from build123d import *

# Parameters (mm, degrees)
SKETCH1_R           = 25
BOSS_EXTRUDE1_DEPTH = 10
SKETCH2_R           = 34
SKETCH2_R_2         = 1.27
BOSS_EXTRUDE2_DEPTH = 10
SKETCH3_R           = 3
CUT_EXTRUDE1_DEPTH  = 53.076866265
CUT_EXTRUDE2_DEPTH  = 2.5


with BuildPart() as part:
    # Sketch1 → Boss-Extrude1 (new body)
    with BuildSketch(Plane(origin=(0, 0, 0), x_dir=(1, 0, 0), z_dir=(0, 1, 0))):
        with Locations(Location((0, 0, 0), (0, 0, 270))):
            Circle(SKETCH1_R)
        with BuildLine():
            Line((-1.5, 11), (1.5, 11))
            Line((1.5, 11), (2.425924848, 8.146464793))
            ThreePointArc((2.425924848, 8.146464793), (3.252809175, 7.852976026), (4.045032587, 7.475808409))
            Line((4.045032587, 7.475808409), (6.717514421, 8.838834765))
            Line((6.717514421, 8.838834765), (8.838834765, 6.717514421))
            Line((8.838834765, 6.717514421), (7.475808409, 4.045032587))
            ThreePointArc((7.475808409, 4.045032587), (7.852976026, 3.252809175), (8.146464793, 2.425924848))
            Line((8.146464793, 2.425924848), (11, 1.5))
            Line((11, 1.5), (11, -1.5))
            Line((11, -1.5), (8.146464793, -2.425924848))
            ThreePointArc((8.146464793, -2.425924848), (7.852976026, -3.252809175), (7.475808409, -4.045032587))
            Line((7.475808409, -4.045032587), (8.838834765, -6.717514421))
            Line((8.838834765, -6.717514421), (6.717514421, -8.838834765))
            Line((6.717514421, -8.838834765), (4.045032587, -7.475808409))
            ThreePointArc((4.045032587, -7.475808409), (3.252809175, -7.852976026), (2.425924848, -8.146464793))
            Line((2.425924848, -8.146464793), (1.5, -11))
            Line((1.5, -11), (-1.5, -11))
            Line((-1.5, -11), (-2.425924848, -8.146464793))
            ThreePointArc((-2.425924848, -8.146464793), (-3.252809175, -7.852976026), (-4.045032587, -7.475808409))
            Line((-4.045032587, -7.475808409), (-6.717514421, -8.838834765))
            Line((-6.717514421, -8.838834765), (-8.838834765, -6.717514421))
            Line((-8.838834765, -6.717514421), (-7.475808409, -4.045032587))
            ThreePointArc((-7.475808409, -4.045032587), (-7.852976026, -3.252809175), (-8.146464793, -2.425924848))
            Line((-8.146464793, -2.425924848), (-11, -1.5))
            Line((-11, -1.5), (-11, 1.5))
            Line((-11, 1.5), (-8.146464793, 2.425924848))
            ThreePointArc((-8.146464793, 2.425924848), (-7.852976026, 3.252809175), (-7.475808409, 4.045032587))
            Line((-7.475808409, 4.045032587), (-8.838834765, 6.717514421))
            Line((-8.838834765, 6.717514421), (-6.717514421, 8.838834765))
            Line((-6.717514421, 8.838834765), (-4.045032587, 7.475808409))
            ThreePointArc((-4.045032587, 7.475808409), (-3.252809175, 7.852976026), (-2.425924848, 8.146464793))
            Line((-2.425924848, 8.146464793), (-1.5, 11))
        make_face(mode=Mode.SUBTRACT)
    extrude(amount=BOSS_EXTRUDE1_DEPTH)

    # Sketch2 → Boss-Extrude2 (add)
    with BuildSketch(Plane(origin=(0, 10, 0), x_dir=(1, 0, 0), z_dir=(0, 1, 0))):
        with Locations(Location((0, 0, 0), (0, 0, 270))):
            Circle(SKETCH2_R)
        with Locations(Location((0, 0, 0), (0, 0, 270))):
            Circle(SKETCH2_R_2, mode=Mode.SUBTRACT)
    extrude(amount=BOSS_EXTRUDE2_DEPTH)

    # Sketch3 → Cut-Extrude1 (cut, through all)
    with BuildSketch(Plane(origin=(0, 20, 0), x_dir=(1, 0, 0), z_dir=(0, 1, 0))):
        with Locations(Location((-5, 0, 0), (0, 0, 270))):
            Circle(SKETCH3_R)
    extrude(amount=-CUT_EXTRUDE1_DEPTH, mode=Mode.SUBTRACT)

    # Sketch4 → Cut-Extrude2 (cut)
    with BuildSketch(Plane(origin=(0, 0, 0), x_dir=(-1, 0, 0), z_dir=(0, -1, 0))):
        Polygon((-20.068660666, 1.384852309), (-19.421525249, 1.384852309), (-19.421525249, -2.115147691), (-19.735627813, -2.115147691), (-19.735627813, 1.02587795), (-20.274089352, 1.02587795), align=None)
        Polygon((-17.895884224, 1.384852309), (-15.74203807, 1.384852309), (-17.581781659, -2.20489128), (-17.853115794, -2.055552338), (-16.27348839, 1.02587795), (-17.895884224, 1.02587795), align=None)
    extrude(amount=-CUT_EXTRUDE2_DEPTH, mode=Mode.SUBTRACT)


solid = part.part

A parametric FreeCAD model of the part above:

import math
import FreeCAD as App
import Part
import Sketcher
from FreeCAD import Vector


def add_polygon(sketch, points):
    """Adds a closed chain of lines whose ends are joined by coincident constraints."""
    first, n = sketch.GeometryCount, len(points)
    for a, b in zip(points, points[1:] + points[:1]):
        sketch.addGeometry(Part.LineSegment(App.Vector(*a, 0), App.Vector(*b, 0)), False)
    for i in range(n):
        sketch.addConstraint(Sketcher.Constraint("Coincident", first + i, 2, first + (i + 1) % n, 1))

doc = App.newDocument("Part")
body = doc.addObject("PartDesign::Body", "Body")

# Sketch on XZ plane
sketch1 = body.newObject("Sketcher::SketchObject", "Sketch")
sketch1.AttachmentSupport = (doc.getObject("XZ_Plane"), [""])
sketch1.MapMode = "FlatFace"
sketch1.addGeometry(Part.Circle(Vector(0, 0, 0), Vector(0, 0, 1), 25), False)
sketch1.addGeometry(Part.LineSegment(Vector(-2.425925, -8.146465, 0), Vector(-1.5, -11, 0)), False)
sketch1.addGeometry(Part.LineSegment(Vector(-1.5, -11, 0), Vector(1.5, -11, 0)), False)
sketch1.addGeometry(Part.LineSegment(Vector(1.5, -11, 0), Vector(2.425925, -8.146465, 0)), False)
sketch1.addGeometry(Part.ArcOfCircle(Part.Circle(Vector(0, 0, 0), Vector(0, 0, 1), 8.5), math.radians(-73.417065), math.radians(-61.582935)), False)
sketch1.addGeometry(Part.LineSegment(Vector(4.045033, -7.475808, 0), Vector(6.717514, -8.838835, 0)), False)
sketch1.addGeometry(Part.LineSegment(Vector(6.717514, -8.838835, 0), Vector(8.838835, -6.717514, 0)), False)
sketch1.addGeometry(Part.LineSegment(Vector(8.838835, -6.717514, 0), Vector(7.475808, -4.045033, 0)), False)
sketch1.addGeometry(Part.ArcOfCircle(Part.Circle(Vector(0, 0, 0), Vector(0, 0, 1), 8.5), math.radians(-28.417065), math.radians(-16.582935)), False)
sketch1.addGeometry(Part.LineSegment(Vector(8.146465, -2.425925, 0), Vector(11, -1.5, 0)), False)
sketch1.addGeometry(Part.LineSegment(Vector(11, -1.5, 0), Vector(11, 1.5, 0)), False)
sketch1.addGeometry(Part.LineSegment(Vector(11, 1.5, 0), Vector(8.146465, 2.425925, 0)), False)
sketch1.addGeometry(Part.ArcOfCircle(Part.Circle(Vector(0, 0, 0), Vector(0, 0, 1), 8.5), math.radians(16.582935), math.radians(28.417065)), False)
sketch1.addGeometry(Part.LineSegment(Vector(7.475808, 4.045033, 0), Vector(8.838835, 6.717514, 0)), False)
sketch1.addGeometry(Part.LineSegment(Vector(8.838835, 6.717514, 0), Vector(6.717514, 8.838835, 0)), False)
sketch1.addGeometry(Part.LineSegment(Vector(6.717514, 8.838835, 0), Vector(4.045033, 7.475808, 0)), False)
sketch1.addGeometry(Part.ArcOfCircle(Part.Circle(Vector(0, 0, 0), Vector(0, 0, 1), 8.5), math.radians(61.582935), math.radians(73.417065)), False)
sketch1.addGeometry(Part.LineSegment(Vector(2.425925, 8.146465, 0), Vector(1.5, 11, 0)), False)
sketch1.addGeometry(Part.LineSegment(Vector(1.5, 11, 0), Vector(-1.5, 11, 0)), False)
sketch1.addGeometry(Part.LineSegment(Vector(-1.5, 11, 0), Vector(-2.425925, 8.146465, 0)), False)
sketch1.addGeometry(Part.ArcOfCircle(Part.Circle(Vector(0, 0, 0), Vector(0, 0, 1), 8.5), math.radians(106.582935), math.radians(118.417065)), False)
sketch1.addGeometry(Part.LineSegment(Vector(-4.045033, 7.475808, 0), Vector(-6.717514, 8.838835, 0)), False)
sketch1.addGeometry(Part.LineSegment(Vector(-6.717514, 8.838835, 0), Vector(-8.838835, 6.717514, 0)), False)
sketch1.addGeometry(Part.LineSegment(Vector(-8.838835, 6.717514, 0), Vector(-7.475808, 4.045033, 0)), False)
sketch1.addGeometry(Part.ArcOfCircle(Part.Circle(Vector(0, 0, 0), Vector(0, 0, 1), 8.5), math.radians(151.582935), math.radians(163.417065)), False)
sketch1.addGeometry(Part.LineSegment(Vector(-8.146465, 2.425925, 0), Vector(-11, 1.5, 0)), False)
sketch1.addGeometry(Part.LineSegment(Vector(-11, 1.5, 0), Vector(-11, -1.5, 0)), False)
sketch1.addGeometry(Part.LineSegment(Vector(-11, -1.5, 0), Vector(-8.146465, -2.425925, 0)), False)
sketch1.addGeometry(Part.ArcOfCircle(Part.Circle(Vector(0, 0, 0), Vector(0, 0, 1), 8.5), math.radians(-163.417065), math.radians(-151.582935)), False)
sketch1.addGeometry(Part.LineSegment(Vector(-7.475808, -4.045033, 0), Vector(-8.838835, -6.717514, 0)), False)
sketch1.addGeometry(Part.LineSegment(Vector(-8.838835, -6.717514, 0), Vector(-6.717514, -8.838835, 0)), False)
sketch1.addGeometry(Part.LineSegment(Vector(-6.717514, -8.838835, 0), Vector(-4.045033, -7.475808, 0)), False)
sketch1.addGeometry(Part.ArcOfCircle(Part.Circle(Vector(0, 0, 0), Vector(0, 0, 1), 8.5), math.radians(-118.417065), math.radians(-106.582935)), False)
sketch1.addConstraint(Sketcher.Constraint("Coincident", 1, 2, 2, 1))
sketch1.addConstraint(Sketcher.Constraint("Coincident", 2, 2, 3, 1))
sketch1.addConstraint(Sketcher.Constraint("Coincident", 3, 2, 4, 1))
sketch1.addConstraint(Sketcher.Constraint("Coincident", 4, 2, 5, 1))
sketch1.addConstraint(Sketcher.Constraint("Coincident", 5, 2, 6, 1))
sketch1.addConstraint(Sketcher.Constraint("Coincident", 6, 2, 7, 1))
sketch1.addConstraint(Sketcher.Constraint("Coincident", 7, 2, 8, 1))
sketch1.addConstraint(Sketcher.Constraint("Coincident", 8, 2, 9, 1))
sketch1.addConstraint(Sketcher.Constraint("Coincident", 9, 2, 10, 1))
sketch1.addConstraint(Sketcher.Constraint("Coincident", 10, 2, 11, 1))
sketch1.addConstraint(Sketcher.Constraint("Coincident", 11, 2, 12, 1))
sketch1.addConstraint(Sketcher.Constraint("Coincident", 12, 2, 13, 1))
sketch1.addConstraint(Sketcher.Constraint("Coincident", 13, 2, 14, 1))
sketch1.addConstraint(Sketcher.Constraint("Coincident", 14, 2, 15, 1))
sketch1.addConstraint(Sketcher.Constraint("Coincident", 15, 2, 16, 1))
sketch1.addConstraint(Sketcher.Constraint("Coincident", 16, 2, 17, 1))
sketch1.addConstraint(Sketcher.Constraint("Coincident", 17, 2, 18, 1))
sketch1.addConstraint(Sketcher.Constraint("Coincident", 18, 2, 19, 1))
sketch1.addConstraint(Sketcher.Constraint("Coincident", 19, 2, 20, 1))
sketch1.addConstraint(Sketcher.Constraint("Coincident", 20, 2, 21, 1))
sketch1.addConstraint(Sketcher.Constraint("Coincident", 21, 2, 22, 1))
sketch1.addConstraint(Sketcher.Constraint("Coincident", 22, 2, 23, 1))
sketch1.addConstraint(Sketcher.Constraint("Coincident", 23, 2, 24, 1))
sketch1.addConstraint(Sketcher.Constraint("Coincident", 24, 2, 25, 1))
sketch1.addConstraint(Sketcher.Constraint("Coincident", 25, 2, 26, 1))
sketch1.addConstraint(Sketcher.Constraint("Coincident", 26, 2, 27, 1))
sketch1.addConstraint(Sketcher.Constraint("Coincident", 27, 2, 28, 1))
sketch1.addConstraint(Sketcher.Constraint("Coincident", 28, 2, 29, 1))
sketch1.addConstraint(Sketcher.Constraint("Coincident", 29, 2, 30, 1))
sketch1.addConstraint(Sketcher.Constraint("Coincident", 30, 2, 31, 1))
sketch1.addConstraint(Sketcher.Constraint("Coincident", 31, 2, 32, 1))
sketch1.addConstraint(Sketcher.Constraint("Coincident", 32, 2, 1, 1))
sketch1.addConstraint(Sketcher.Constraint("Horizontal", 2))
sketch1.addConstraint(Sketcher.Constraint("Vertical", 10))
sketch1.addConstraint(Sketcher.Constraint("Horizontal", 18))
sketch1.addConstraint(Sketcher.Constraint("Vertical", 26))
sketch1.addConstraint(Sketcher.Constraint("Coincident", 0, 3, -1, 1))
sketch1.addConstraint(Sketcher.Constraint("Coincident", 4, 3, -1, 1))
sketch1.addConstraint(Sketcher.Constraint("Coincident", 8, 3, -1, 1))
sketch1.addConstraint(Sketcher.Constraint("Coincident", 12, 3, -1, 1))
sketch1.addConstraint(Sketcher.Constraint("Coincident", 16, 3, -1, 1))
sketch1.addConstraint(Sketcher.Constraint("Coincident", 20, 3, -1, 1))
sketch1.addConstraint(Sketcher.Constraint("Coincident", 24, 3, -1, 1))
sketch1.addConstraint(Sketcher.Constraint("Coincident", 28, 3, -1, 1))
sketch1.addConstraint(Sketcher.Constraint("Coincident", 32, 3, -1, 1))
sketch1.addConstraint(Sketcher.Constraint("Equal", 4, 8))
sketch1.addConstraint(Sketcher.Constraint("Equal", 8, 12))
sketch1.addConstraint(Sketcher.Constraint("Equal", 12, 16))
sketch1.addConstraint(Sketcher.Constraint("Equal", 16, 20))
sketch1.addConstraint(Sketcher.Constraint("Equal", 20, 24))
sketch1.addConstraint(Sketcher.Constraint("Equal", 24, 28))
sketch1.addConstraint(Sketcher.Constraint("Equal", 28, 32))
sketch1.addConstraint(Sketcher.Constraint("Symmetric", 1, 2, 17, 2, -1, 1))
sketch1.addConstraint(Sketcher.Constraint("Symmetric", 5, 2, 21, 2, -1, 1))
sketch1.addConstraint(Sketcher.Constraint("Symmetric", 6, 2, 22, 2, -1, 1))
sketch1.addConstraint(Sketcher.Constraint("Symmetric", 9, 2, 25, 2, -1, 1))
sketch1.addConstraint(Sketcher.Constraint("Symmetric", 13, 2, 29, 2, -1, 1))
sketch1.addConstraint(Sketcher.Constraint("Symmetric", 14, 2, 30, 2, -1, 1))
sketch1.addConstraint(Sketcher.Constraint("Symmetric", 14, 2, 21, 2, -2))
sketch1.addConstraint(Sketcher.Constraint("Symmetric", 13, 2, 22, 2, -2))
sketch1.addConstraint(Sketcher.Constraint("Perpendicular", 1, 9))
sketch1.addConstraint(Sketcher.Constraint("Perpendicular", 3, 11))
sketch1.addConstraint(Sketcher.Constraint("Perpendicular", 5, 13))
sketch1.addConstraint(Sketcher.Constraint("Perpendicular", 6, 14))
sketch1.addConstraint(Sketcher.Constraint("Perpendicular", 7, 15))
sketch1.addConstraint(Sketcher.Constraint("Perpendicular", 9, 17))
sketch1.addConstraint(Sketcher.Constraint("Perpendicular", 11, 19))
sketch1.addConstraint(Sketcher.Constraint("Perpendicular", 13, 21))
sketch1.addConstraint(Sketcher.Constraint("Perpendicular", 15, 23))
sketch1.addConstraint(Sketcher.Constraint("Perpendicular", 17, 25))
sketch1.addConstraint(Sketcher.Constraint("Perpendicular", 19, 27))
sketch1.addConstraint(Sketcher.Constraint("Perpendicular", 21, 29))
sketch1.addConstraint(Sketcher.Constraint("Perpendicular", 23, 31))
sketch1.addConstraint(Sketcher.Constraint("Horizontal", 16, 2, 19, 2))
sketch1.addConstraint(Sketcher.Constraint("Horizontal", 15, 2, 20, 2))
sketch1.addConstraint(Sketcher.Constraint("Horizontal", 11, 2, 24, 2))
sketch1.addConstraint(Sketcher.Constraint("Horizontal", 10, 2, 25, 2))
sketch1.addConstraint(Sketcher.Constraint("Horizontal", 9, 2, 26, 2))
sketch1.addConstraint(Sketcher.Constraint("Horizontal", 3, 2, 32, 2))
sketch1.addConstraint(Sketcher.Constraint("Equal", 18, 10))
sketch1.addConstraint(Sketcher.Constraint("Equal", 3, 5))
sketch1.addConstraint(Sketcher.Constraint("Equal", 5, 6))
sketch1.addConstraint(Sketcher.Constraint("Equal", 6, 7))
sketch1.addConstraint(Sketcher.Constraint("Equal", 7, 9))
sketch1.addConstraint(Sketcher.Constraint("Diameter", 0, 50.0))
sketch1.addConstraint(Sketcher.Constraint("Radius", 4, 8.5))
sketch1.addConstraint(Sketcher.Constraint("DistanceX", 2, 1, 2, 2, 3.0))
sketch1.addConstraint(Sketcher.Constraint("Distance", 1, 3.0))
sketch1.addConstraint(Sketcher.Constraint("DistanceY", 1, 2, -1, 1, 11.0))
sketch1.addConstraint(Sketcher.Constraint("DistanceY", 4, 2, -1, 1, 7.475808))
pad1 = body.newObject("PartDesign::Pad", "Pad")
pad1.Profile = sketch1
pad1.Length = 10
pad1.Reversed = True

# Sketch on XZ plane
sketch2 = body.newObject("Sketcher::SketchObject", "Sketch001")
sketch2.AttachmentSupport = (doc.getObject("XZ_Plane"), [""])
sketch2.MapMode = "FlatFace"
sketch2.AttachmentOffset = App.Placement(Vector(0, 0, -10), App.Rotation())
sketch2.addGeometry(Part.Circle(Vector(0, 0, 0), Vector(0, 0, 1), 34), False)
sketch2.addGeometry(Part.Circle(Vector(0, 0, 0), Vector(0, 0, 1), 1.27), False)
sketch2.addConstraint(Sketcher.Constraint("Coincident", 0, 3, -1, 1))
sketch2.addConstraint(Sketcher.Constraint("Coincident", 1, 3, -1, 1))
sketch2.addConstraint(Sketcher.Constraint("Diameter", 0, 68.0))
sketch2.addConstraint(Sketcher.Constraint("Diameter", 1, 2.54))
pad2 = body.newObject("PartDesign::Pad", "Pad001")
pad2.Profile = sketch2
pad2.Length = 10
pad2.Reversed = True

# Sketch on XZ plane
sketch3 = body.newObject("Sketcher::SketchObject", "Sketch002")
sketch3.AttachmentSupport = (doc.getObject("XZ_Plane"), [""])
sketch3.MapMode = "FlatFace"
sketch3.AttachmentOffset = App.Placement(Vector(0, 0, -20), App.Rotation())
sketch3.addGeometry(Part.Circle(Vector(-5, 0, 0), Vector(0, 0, 1), 3), False)
sketch3.addConstraint(Sketcher.Constraint("PointOnObject", 0, 3, -1))
sketch3.addConstraint(Sketcher.Constraint("Diameter", 0, 6.0))
sketch3.addConstraint(Sketcher.Constraint("DistanceX", 0, 3, -1, 1, 5.0))
pocket1 = body.newObject("PartDesign::Pocket", "Pocket")
pocket1.Profile = sketch3
pocket1.Type = "ThroughAll"
pocket1.Reversed = True

# Sketch on XZ plane
sketch4 = body.newObject("Sketcher::SketchObject", "Sketch003")
sketch4.AttachmentSupport = (doc.getObject("XZ_Plane"), [""])
sketch4.MapMode = "FlatFace"
add_polygon(sketch4, [(19.421525, -1.384852), (20.068661, -1.384852), (20.274089, -1.025878), (19.735628, -1.025878), (19.735628, 2.115148), (19.421525, 2.115148)])  # lines 0-5
add_polygon(sketch4, [(15.742038, -1.384852), (17.895884, -1.384852), (17.895884, -1.025878), (16.273488, -1.025878), (17.853116, 2.055552), (17.581782, 2.204891)])  # lines 6-11
sketch4.addConstraint(Sketcher.Constraint("Horizontal", 0))
sketch4.addConstraint(Sketcher.Constraint("Horizontal", 2))
sketch4.addConstraint(Sketcher.Constraint("Vertical", 3))
sketch4.addConstraint(Sketcher.Constraint("Horizontal", 4))
sketch4.addConstraint(Sketcher.Constraint("Vertical", 5))
sketch4.addConstraint(Sketcher.Constraint("Horizontal", 6))
sketch4.addConstraint(Sketcher.Constraint("Vertical", 7))
sketch4.addConstraint(Sketcher.Constraint("Horizontal", 8))
sketch4.addConstraint(Sketcher.Constraint("Horizontal", 5, 2, 6, 2))
sketch4.addConstraint(Sketcher.Constraint("Horizontal", 2, 2, 7, 2))
sketch4.addConstraint(Sketcher.Constraint("DistanceY", 5, 2, 5, 1, 3.5))
sketch4.addConstraint(Sketcher.Constraint("Distance", 1, 0.413598))
sketch4.addConstraint(Sketcher.Constraint("DistanceX", 2, 2, 2, 1, 0.538462))
sketch4.addConstraint(Sketcher.Constraint("Distance", 9, 3.462721))
sketch4.addConstraint(Sketcher.Constraint("DistanceX", 0, 1, 0, 2, 0.647135))
sketch4.addConstraint(Sketcher.Constraint("DistanceX", 4, 2, 4, 1, 0.314103))
sketch4.addConstraint(Sketcher.Constraint("DistanceX", 6, 1, 6, 2, 2.153846))
sketch4.addConstraint(Sketcher.Constraint("DistanceX", 8, 2, 8, 1, 1.622396))
sketch4.addConstraint(Sketcher.Constraint("DistanceX", -1, 1, 0, 2, 20.068661))
sketch4.addConstraint(Sketcher.Constraint("DistanceX", -1, 1, 8, 2, 16.273488))
sketch4.addConstraint(Sketcher.Constraint("DistanceX", -1, 1, 10, 2, 17.581782))
sketch4.addConstraint(Sketcher.Constraint("DistanceY", -1, 1, 10, 2, 2.204891))
sketch4.addConstraint(Sketcher.Constraint("DistanceX", 9, 2, 4, 2, 1.568409))
sketch4.addConstraint(Sketcher.Constraint("DistanceY", 9, 2, 10, 2, 0.149339))
pocket2 = body.newObject("PartDesign::Pocket", "Pocket001")
pocket2.Profile = sketch4
pocket2.Length = 2.5

doc.recompute()
